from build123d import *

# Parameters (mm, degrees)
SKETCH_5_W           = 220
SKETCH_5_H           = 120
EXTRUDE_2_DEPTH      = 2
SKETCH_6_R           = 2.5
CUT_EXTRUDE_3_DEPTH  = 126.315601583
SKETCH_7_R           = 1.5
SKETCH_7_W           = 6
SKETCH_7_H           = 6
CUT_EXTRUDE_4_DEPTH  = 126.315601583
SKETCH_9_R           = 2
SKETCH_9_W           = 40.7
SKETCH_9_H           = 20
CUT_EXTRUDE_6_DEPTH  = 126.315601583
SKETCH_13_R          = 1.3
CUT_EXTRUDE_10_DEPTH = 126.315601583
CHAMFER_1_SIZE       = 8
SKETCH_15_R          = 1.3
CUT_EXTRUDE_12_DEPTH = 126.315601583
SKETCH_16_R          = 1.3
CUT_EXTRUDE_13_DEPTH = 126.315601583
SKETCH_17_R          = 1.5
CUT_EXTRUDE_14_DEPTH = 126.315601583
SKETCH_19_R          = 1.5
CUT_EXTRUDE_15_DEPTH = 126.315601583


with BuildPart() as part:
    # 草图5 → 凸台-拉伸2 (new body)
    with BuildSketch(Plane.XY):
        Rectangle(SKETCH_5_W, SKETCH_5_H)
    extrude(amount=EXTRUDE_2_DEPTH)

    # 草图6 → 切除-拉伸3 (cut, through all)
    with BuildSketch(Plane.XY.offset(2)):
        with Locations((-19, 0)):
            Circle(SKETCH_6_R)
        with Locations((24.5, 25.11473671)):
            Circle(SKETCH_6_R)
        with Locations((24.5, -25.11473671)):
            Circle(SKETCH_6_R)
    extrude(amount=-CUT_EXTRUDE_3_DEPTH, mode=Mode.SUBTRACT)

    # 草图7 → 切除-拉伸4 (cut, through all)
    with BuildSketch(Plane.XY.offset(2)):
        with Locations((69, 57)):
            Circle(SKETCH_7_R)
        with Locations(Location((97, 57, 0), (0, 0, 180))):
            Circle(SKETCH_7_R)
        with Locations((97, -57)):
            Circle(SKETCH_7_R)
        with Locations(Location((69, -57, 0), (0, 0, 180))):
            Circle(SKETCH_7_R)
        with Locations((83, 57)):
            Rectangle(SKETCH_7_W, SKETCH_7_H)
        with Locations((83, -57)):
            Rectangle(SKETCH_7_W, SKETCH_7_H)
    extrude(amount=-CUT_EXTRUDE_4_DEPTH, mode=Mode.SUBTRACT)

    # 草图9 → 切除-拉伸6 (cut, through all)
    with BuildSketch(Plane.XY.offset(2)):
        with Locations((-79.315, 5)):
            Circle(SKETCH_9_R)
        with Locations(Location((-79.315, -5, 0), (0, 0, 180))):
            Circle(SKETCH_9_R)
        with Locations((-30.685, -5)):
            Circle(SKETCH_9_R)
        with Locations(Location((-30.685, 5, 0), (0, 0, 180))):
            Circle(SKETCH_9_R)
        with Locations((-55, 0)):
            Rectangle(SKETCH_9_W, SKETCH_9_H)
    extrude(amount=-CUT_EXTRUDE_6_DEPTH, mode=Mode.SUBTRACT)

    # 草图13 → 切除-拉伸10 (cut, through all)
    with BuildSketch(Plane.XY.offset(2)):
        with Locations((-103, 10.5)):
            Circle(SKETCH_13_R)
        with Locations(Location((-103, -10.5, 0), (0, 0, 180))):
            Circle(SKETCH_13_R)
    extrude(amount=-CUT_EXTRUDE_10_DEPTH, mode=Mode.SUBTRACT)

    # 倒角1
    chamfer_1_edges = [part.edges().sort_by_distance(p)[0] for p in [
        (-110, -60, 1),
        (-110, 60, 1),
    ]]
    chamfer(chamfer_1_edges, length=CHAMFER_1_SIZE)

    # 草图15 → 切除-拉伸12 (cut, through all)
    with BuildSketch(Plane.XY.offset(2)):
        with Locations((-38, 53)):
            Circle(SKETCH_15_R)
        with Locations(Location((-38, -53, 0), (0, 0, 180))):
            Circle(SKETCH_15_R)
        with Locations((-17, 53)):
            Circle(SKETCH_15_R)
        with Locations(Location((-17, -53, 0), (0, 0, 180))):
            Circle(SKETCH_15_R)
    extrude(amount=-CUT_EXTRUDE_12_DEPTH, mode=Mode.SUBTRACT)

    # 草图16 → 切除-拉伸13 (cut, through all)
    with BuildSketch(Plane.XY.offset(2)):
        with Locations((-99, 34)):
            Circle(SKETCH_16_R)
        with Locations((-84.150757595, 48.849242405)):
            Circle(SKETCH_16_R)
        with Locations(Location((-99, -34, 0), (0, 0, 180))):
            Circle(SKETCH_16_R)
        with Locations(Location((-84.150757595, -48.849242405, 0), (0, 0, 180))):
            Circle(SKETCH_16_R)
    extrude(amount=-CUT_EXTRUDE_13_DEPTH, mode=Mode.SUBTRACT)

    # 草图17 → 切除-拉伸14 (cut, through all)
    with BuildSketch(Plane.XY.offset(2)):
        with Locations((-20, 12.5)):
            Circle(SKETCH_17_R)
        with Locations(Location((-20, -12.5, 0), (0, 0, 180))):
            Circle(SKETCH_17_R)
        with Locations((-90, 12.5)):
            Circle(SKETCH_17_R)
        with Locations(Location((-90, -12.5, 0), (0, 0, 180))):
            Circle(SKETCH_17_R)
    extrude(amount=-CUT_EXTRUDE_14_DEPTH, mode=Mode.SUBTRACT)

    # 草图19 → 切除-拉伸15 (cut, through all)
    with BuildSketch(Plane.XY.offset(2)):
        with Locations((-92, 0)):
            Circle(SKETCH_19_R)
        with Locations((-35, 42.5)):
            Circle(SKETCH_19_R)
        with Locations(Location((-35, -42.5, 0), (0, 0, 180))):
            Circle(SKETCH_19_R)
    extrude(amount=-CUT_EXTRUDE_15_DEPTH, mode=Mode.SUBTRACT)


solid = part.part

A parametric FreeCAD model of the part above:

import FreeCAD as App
import Part
import Sketcher
from FreeCAD import Vector


def edges_at(feature, points):
    """Names of the edges that pass closest to the given points."""
    edges = feature.Shape.Edges
    near = lambda p: min(range(len(edges)), key=lambda i: edges[i].distToShape(Part.Vertex(*p))[0])
    return sorted({f"Edge{near(p) + 1}" for p in points})


def add_polygon(sketch, points):
    """Adds a closed chain of lines whose ends are joined by coincident constraints."""
    first, n = sketch.GeometryCount, len(points)
    for a, b in zip(points, points[1:] + points[:1]):
        sketch.addGeometry(Part.LineSegment(App.Vector(*a, 0), App.Vector(*b, 0)), False)
    for i in range(n):
        sketch.addConstraint(Sketcher.Constraint("Coincident", first + i, 2, first + (i + 1) % n, 1))

doc = App.newDocument("Part")
body = doc.addObject("PartDesign::Body", "Body")

sketch1 = doc.addObject("Sketcher::SketchObject", "Sketch")
body.addObject(sketch1)
sketch1.AttachmentSupport = (doc.XY_Plane, [""])
sketch1.MapMode = "FlatFace"
add_polygon(sketch1, [(-110, 60), (-110, -60), (110, -60), (110, 60)])
sketch1.addConstraint([
    Sketcher.Constraint("Vertical", 0),
    Sketcher.Constraint("Horizontal", 1),
    Sketcher.Constraint("Vertical", 2),
    Sketcher.Constraint("Horizontal", 3),
    Sketcher.Constraint("Symmetric", 0, 2, 2, 2, -1, 1),
    Sketcher.Constraint("DistanceX", 1, 1, 1, 2, 220.0),
    Sketcher.Constraint("DistanceY", 0, 2, 0, 1, 120.0),
])
pad1 = doc.addObject("PartDesign::Pad", "Pad")
body.addObject(pad1)
pad1.Profile = sketch1
pad1.Length = 2

sketch2 = doc.addObject("Sketcher::SketchObject", "Sketch001")
body.addObject(sketch2)
sketch2.AttachmentSupport = (doc.XY_Plane, [""])
sketch2.MapMode = "FlatFace"
sketch2.AttachmentOffset = App.Placement(Vector(0, 0, 2), App.Rotation())
sketch2.addGeometry([
    Part.Circle(Vector(-19, 0, 0), Vector(0, 0, 1), 2.5),
    Part.Circle(Vector(24.5, 25.114737, 0), Vector(0, 0, 1), 2.5),
    Part.Circle(Vector(24.5, -25.114737, 0), Vector(0, 0, 1), 2.5),
], False)
sketch2.addConstraint([
    Sketcher.Constraint("Equal", 0, 1),
    Sketcher.Constraint("Equal", 1, 2),
    Sketcher.Constraint("Symmetric", 1, 3, 2, 3, -1),
    Sketcher.Constraint("PointOnObject", 0, 3, -1),
    Sketcher.Constraint("Diameter", 0, 5.0),
    Sketcher.Constraint("DistanceX", 0, 3, -1, 1, 19.0),
    Sketcher.Constraint("DistanceX", -1, 1, 1, 3, 24.5),
    Sketcher.Constraint("DistanceY", -1, 1, 1, 3, 25.114737),
])
pocket1 = doc.addObject("PartDesign::Pocket", "Pocket")
body.addObject(pocket1)
pocket1.Profile = sketch2
pocket1.Type = "ThroughAll"

sketch3 = doc.addObject("Sketcher::SketchObject", "Sketch002")
body.addObject(sketch3)
sketch3.AttachmentSupport = (doc.XY_Plane, [""])
sketch3.MapMode = "FlatFace"
sketch3.AttachmentOffset = App.Placement(Vector(0, 0, 2), App.Rotation())
sketch3.addGeometry(Part.Circle(Vector(69, 57, 0), Vector(0, 0, 1), 1.5), False)
sketch3.addGeometry(Part.Circle(Vector(97, 57, 0), Vector(0, 0, 1), 1.5), False)
sketch3.addGeometry(Part.Circle(Vector(97, -57, 0), Vector(0, 0, 1), 1.5), False)
sketch3.addGeometry(Part.Circle(Vector(69, -57, 0), Vector(0, 0, 1), 1.5), False)
add_polygon(sketch3, [(80, 60), (80, 54), (86, 54), (86, 60)])
add_polygon(sketch3, [(80, -54), (80, -60), (86, -60), (86, -54)])
sketch3.addConstraint([
    Sketcher.Constraint("Vertical", 4),
    Sketcher.Constraint("Horizontal", 5),
    Sketcher.Constraint("Vertical", 6),
    Sketcher.Constraint("Horizontal", 7),
    Sketcher.Constraint("Vertical", 8),
    Sketcher.Constraint("Horizontal", 9),
    Sketcher.Constraint("Vertical", 10),
    Sketcher.Constraint("Horizontal", 11),
    Sketcher.Constraint("Equal", 0, 1),
    Sketcher.Constraint("Equal", 1, 2),
    Sketcher.Constraint("Equal", 2, 3),
    Sketcher.Constraint("Symmetric", 1, 3, 2, 3, -1),
    Sketcher.Constraint("Symmetric", 0, 3, 3, 3, -1),
    Sketcher.Constraint("Symmetric", 7, 2, 8, 2, -1),
    Sketcher.Constraint("Symmetric", 5, 2, 10, 2, -1),
    Sketcher.Constraint("Horizontal", 0, 3, 1, 3),
    Sketcher.Constraint("Equal", 11, 4),
    Sketcher.Constraint("Diameter", 0, 3.0),
    Sketcher.Constraint("DistanceX", 5, 1, 5, 2, 6.0),
    Sketcher.Constraint("DistanceX", -1, 1, 0, 3, 69.0),
    Sketcher.Constraint("DistanceY", -1, 1, 0, 3, 57.0),
    Sketcher.Constraint("DistanceX", -1, 1, 1, 3, 97.0),
    Sketcher.Constraint("DistanceX", -1, 1, 4, 2, 80.0),
    Sketcher.Constraint("DistanceY", -1, 1, 4, 2, 54.0),
])
pocket2 = doc.addObject("PartDesign::Pocket", "Pocket001")
body.addObject(pocket2)
pocket2.Profile = sketch3
pocket2.Type = "ThroughAll"

sketch4 = doc.addObject("Sketcher::SketchObject", "Sketch003")
body.addObject(sketch4)
sketch4.AttachmentSupport = (doc.XY_Plane, [""])
sketch4.MapMode = "FlatFace"
sketch4.AttachmentOffset = App.Placement(Vector(0, 0, 2), App.Rotation())
sketch4.addGeometry(Part.Circle(Vector(-79.315, 5, 0), Vector(0, 0, 1), 2), False)
sketch4.addGeometry(Part.Circle(Vector(-79.315, -5, 0), Vector(0, 0, 1), 2), False)
sketch4.addGeometry(Part.Circle(Vector(-30.685, -5, 0), Vector(0, 0, 1), 2), False)
sketch4.addGeometry(Part.Circle(Vector(-30.685, 5, 0), Vector(0, 0, 1), 2), False)
add_polygon(sketch4, [(-75.35, 10), (-75.35, -10), (-34.65, -10), (-34.65, 10)])
sketch4.addConstraint([
    Sketcher.Constraint("Vertical", 4),
    Sketcher.Constraint("Horizontal", 5),
    Sketcher.Constraint("Vertical", 6),
    Sketcher.Constraint("Horizontal", 7),
    Sketcher.Constraint("Equal", 0, 1),
    Sketcher.Constraint("Equal", 1, 2),
    Sketcher.Constraint("Equal", 2, 3),
    Sketcher.Constraint("Symmetric", 0, 3, 1, 3, -1),
    Sketcher.Constraint("Symmetric", 2, 3, 3, 3, -1),
    Sketcher.Constraint("Horizontal", 1, 3, 2, 3),
    Sketcher.Constraint("Diameter", 0, 4.0),
    Sketcher.Constraint("DistanceY", 4, 2, 4, 1, 20.0),
    Sketcher.Constraint("DistanceX", 5, 1, 5, 2, 40.7),
    Sketcher.Constraint("DistanceY", -1, 1, 0, 3, 5.0),
    Sketcher.Constraint("DistanceY", 4, 2, -1, 1, 10.0),
    Sketcher.Constraint("DistanceX", 4, 2, -1, 1, 75.35),
    Sketcher.Constraint("DistanceX", 1, 3, 2, 3, 48.63),
    Sketcher.Constraint("DistanceX", 0, 3, -1, 1, 79.315),
])
pocket3 = doc.addObject("PartDesign::Pocket", "Pocket002")
body.addObject(pocket3)
pocket3.Profile = sketch4
pocket3.Type = "ThroughAll"

sketch5 = doc.addObject("Sketcher::SketchObject", "Sketch004")
body.addObject(sketch5)
sketch5.AttachmentSupport = (doc.XY_Plane, [""])
sketch5.MapMode = "FlatFace"
sketch5.AttachmentOffset = App.Placement(Vector(0, 0, 2), App.Rotation())
sketch5.addGeometry([
    Part.Circle(Vector(-103, 10.5, 0), Vector(0, 0, 1), 1.3),
    Part.Circle(Vector(-103, -10.5, 0), Vector(0, 0, 1), 1.3),
], False)
sketch5.addConstraint([
    Sketcher.Constraint("Equal", 0, 1),
    Sketcher.Constraint("Symmetric", 0, 3, 1, 3, -1),
    Sketcher.Constraint("Diameter", 0, 2.6),
    Sketcher.Constraint("DistanceX", 0, 3, -1, 1, 103.0),
    Sketcher.Constraint("DistanceY", 1, 3, 0, 3, 21.0),
])
pocket4 = doc.addObject("PartDesign::Pocket", "Pocket003")
body.addObject(pocket4)
pocket4.Profile = sketch5
pocket4.Type = "ThroughAll"
doc.recompute()

chamfer = doc.addObject("PartDesign::Chamfer", "Chamfer")
body.addObject(chamfer)
chamfer.Base = (pocket4, edges_at(pocket4, [(-110, -60, 1), (-110, 60, 1)]))
chamfer.Size = 8

sketch6 = doc.addObject("Sketcher::SketchObject", "Sketch005")
body.addObject(sketch6)
sketch6.AttachmentSupport = (doc.XY_Plane, [""])
sketch6.MapMode = "FlatFace"
sketch6.AttachmentOffset = App.Placement(Vector(0, 0, 2), App.Rotation())
sketch6.addGeometry([
    Part.Circle(Vector(-38, 53, 0), Vector(0, 0, 1), 1.3),
    Part.Circle(Vector(-38, -53, 0), Vector(0, 0, 1), 1.3),
    Part.Circle(Vector(-17, 53, 0), Vector(0, 0, 1), 1.3),
    Part.Circle(Vector(-17, -53, 0), Vector(0, 0, 1), 1.3),
], False)
sketch6.addConstraint([
    Sketcher.Constraint("Equal", 0, 1),
    Sketcher.Constraint("Equal", 1, 2),
    Sketcher.Constraint("Equal", 2, 3),
    Sketcher.Constraint("Symmetric", 0, 3, 1, 3, -1),
    Sketcher.Constraint("Symmetric", 2, 3, 3, 3, -1),
    Sketcher.Constraint("Horizontal", 0, 3, 2, 3),
    Sketcher.Constraint("Diameter", 0, 2.6),
    Sketcher.Constraint("DistanceX", 0, 3, -1, 1, 38.0),
    Sketcher.Constraint("DistanceY", -1, 1, 0, 3, 53.0),
    Sketcher.Constraint("DistanceX", 2, 3, -1, 1, 17.0),
])
pocket5 = doc.addObject("PartDesign::Pocket", "Pocket004")
body.addObject(pocket5)
pocket5.Profile = sketch6
pocket5.Type = "ThroughAll"

sketch7 = doc.addObject("Sketcher::SketchObject", "Sketch006")
body.addObject(sketch7)
sketch7.AttachmentSupport = (doc.XY_Plane, [""])
sketch7.MapMode = "FlatFace"
sketch7.AttachmentOffset = App.Placement(Vector(0, 0, 2), App.Rotation())
sketch7.addGeometry([
    Part.Circle(Vector(-99, 34, 0), Vector(0, 0, 1), 1.3),
    Part.Circle(Vector(-84.150758, 48.849242, 0), Vector(0, 0, 1), 1.3),
    Part.Circle(Vector(-99, -34, 0), Vector(0, 0, 1), 1.3),
    Part.Circle(Vector(-84.150758, -48.849242, 0), Vector(0, 0, 1), 1.3),
], False)
sketch7.addConstraint([
    Sketcher.Constraint("Equal", 0, 1),
    Sketcher.Constraint("Equal", 1, 2),
    Sketcher.Constraint("Equal", 2, 3),
    Sketcher.Constraint("Symmetric", 0, 3, 2, 3, -1),
    Sketcher.Constraint("Symmetric", 1, 3, 3, 3, -1),
    Sketcher.Constraint("Diameter", 0, 2.6),
    Sketcher.Constraint("DistanceX", 0, 3, -1, 1, 99.0),
    Sketcher.Constraint("DistanceY", -1, 1, 0, 3, 34.0),
    Sketcher.Constraint("DistanceX", 1, 3, -1, 1, 84.150758),
    Sketcher.Constraint("DistanceY", -1, 1, 1, 3, 48.849242),
])
pocket6 = doc.addObject("PartDesign::Pocket", "Pocket005")
body.addObject(pocket6)
pocket6.Profile = sketch7
pocket6.Type = "ThroughAll"

sketch8 = doc.addObject("Sketcher::SketchObject", "Sketch007")
body.addObject(sketch8)
sketch8.AttachmentSupport = (doc.XY_Plane, [""])
sketch8.MapMode = "FlatFace"
sketch8.AttachmentOffset = App.Placement(Vector(0, 0, 2), App.Rotation())
sketch8.addGeometry([
    Part.Circle(Vector(-20, 12.5, 0), Vector(0, 0, 1), 1.5),
    Part.Circle(Vector(-20, -12.5, 0), Vector(0, 0, 1), 1.5),
    Part.Circle(Vector(-90, 12.5, 0), Vector(0, 0, 1), 1.5),
    Part.Circle(Vector(-90, -12.5, 0), Vector(0, 0, 1), 1.5),
], False)
sketch8.addConstraint([
    Sketcher.Constraint("Equal", 0, 1),
    Sketcher.Constraint("Equal", 1, 2),
    Sketcher.Constraint("Equal", 2, 3),
    Sketcher.Constraint("Symmetric", 0, 3, 1, 3, -1),
    Sketcher.Constraint("Symmetric", 2, 3, 3, 3, -1),
    Sketcher.Constraint("Horizontal", 0, 3, 2, 3),
    Sketcher.Constraint("Diameter", 0, 3.0),
    Sketcher.Constraint("DistanceX", 0, 3, -1, 1, 20.0),
    Sketcher.Constraint("DistanceX", 2, 3, -1, 1, 90.0),
    Sketcher.Constraint("DistanceY", 1, 3, 0, 3, 25.0),
])
pocket7 = doc.addObject("PartDesign::Pocket", "Pocket006")
body.addObject(pocket7)
pocket7.Profile = sketch8
pocket7.Type = "ThroughAll"

sketch9 = doc.addObject("Sketcher::SketchObject", "Sketch008")
body.addObject(sketch9)
sketch9.AttachmentSupport = (doc.XY_Plane, [""])
sketch9.MapMode = "FlatFace"
sketch9.AttachmentOffset = App.Placement(Vector(0, 0, 2), App.Rotation())
sketch9.addGeometry([
    Part.Circle(Vector(-92, 0, 0), Vector(0, 0, 1), 1.5),
    Part.Circle(Vector(-35, 42.5, 0), Vector(0, 0, 1), 1.5),
    Part.Circle(Vector(-35, -42.5, 0), Vector(0, 0, 1), 1.5),
], False)
sketch9.addConstraint([
    Sketcher.Constraint("Equal", 0, 1),
    Sketcher.Constraint("Equal", 1, 2),
    Sketcher.Constraint("Symmetric", 1, 3, 2, 3, -1),
    Sketcher.Constraint("PointOnObject", 0, 3, -1),
    Sketcher.Constraint("Diameter", 0, 3.0),
    Sketcher.Constraint("DistanceX", 0, 3, -1, 1, 92.0),
    Sketcher.Constraint("DistanceX", 1, 3, -1, 1, 35.0),
    Sketcher.Constraint("DistanceY", 2, 3, 1, 3, 85.0),
])
pocket8 = doc.addObject("PartDesign::Pocket", "Pocket007")
body.addObject(pocket8)
pocket8.Profile = sketch9
pocket8.Type = "ThroughAll"

doc.recompute()
